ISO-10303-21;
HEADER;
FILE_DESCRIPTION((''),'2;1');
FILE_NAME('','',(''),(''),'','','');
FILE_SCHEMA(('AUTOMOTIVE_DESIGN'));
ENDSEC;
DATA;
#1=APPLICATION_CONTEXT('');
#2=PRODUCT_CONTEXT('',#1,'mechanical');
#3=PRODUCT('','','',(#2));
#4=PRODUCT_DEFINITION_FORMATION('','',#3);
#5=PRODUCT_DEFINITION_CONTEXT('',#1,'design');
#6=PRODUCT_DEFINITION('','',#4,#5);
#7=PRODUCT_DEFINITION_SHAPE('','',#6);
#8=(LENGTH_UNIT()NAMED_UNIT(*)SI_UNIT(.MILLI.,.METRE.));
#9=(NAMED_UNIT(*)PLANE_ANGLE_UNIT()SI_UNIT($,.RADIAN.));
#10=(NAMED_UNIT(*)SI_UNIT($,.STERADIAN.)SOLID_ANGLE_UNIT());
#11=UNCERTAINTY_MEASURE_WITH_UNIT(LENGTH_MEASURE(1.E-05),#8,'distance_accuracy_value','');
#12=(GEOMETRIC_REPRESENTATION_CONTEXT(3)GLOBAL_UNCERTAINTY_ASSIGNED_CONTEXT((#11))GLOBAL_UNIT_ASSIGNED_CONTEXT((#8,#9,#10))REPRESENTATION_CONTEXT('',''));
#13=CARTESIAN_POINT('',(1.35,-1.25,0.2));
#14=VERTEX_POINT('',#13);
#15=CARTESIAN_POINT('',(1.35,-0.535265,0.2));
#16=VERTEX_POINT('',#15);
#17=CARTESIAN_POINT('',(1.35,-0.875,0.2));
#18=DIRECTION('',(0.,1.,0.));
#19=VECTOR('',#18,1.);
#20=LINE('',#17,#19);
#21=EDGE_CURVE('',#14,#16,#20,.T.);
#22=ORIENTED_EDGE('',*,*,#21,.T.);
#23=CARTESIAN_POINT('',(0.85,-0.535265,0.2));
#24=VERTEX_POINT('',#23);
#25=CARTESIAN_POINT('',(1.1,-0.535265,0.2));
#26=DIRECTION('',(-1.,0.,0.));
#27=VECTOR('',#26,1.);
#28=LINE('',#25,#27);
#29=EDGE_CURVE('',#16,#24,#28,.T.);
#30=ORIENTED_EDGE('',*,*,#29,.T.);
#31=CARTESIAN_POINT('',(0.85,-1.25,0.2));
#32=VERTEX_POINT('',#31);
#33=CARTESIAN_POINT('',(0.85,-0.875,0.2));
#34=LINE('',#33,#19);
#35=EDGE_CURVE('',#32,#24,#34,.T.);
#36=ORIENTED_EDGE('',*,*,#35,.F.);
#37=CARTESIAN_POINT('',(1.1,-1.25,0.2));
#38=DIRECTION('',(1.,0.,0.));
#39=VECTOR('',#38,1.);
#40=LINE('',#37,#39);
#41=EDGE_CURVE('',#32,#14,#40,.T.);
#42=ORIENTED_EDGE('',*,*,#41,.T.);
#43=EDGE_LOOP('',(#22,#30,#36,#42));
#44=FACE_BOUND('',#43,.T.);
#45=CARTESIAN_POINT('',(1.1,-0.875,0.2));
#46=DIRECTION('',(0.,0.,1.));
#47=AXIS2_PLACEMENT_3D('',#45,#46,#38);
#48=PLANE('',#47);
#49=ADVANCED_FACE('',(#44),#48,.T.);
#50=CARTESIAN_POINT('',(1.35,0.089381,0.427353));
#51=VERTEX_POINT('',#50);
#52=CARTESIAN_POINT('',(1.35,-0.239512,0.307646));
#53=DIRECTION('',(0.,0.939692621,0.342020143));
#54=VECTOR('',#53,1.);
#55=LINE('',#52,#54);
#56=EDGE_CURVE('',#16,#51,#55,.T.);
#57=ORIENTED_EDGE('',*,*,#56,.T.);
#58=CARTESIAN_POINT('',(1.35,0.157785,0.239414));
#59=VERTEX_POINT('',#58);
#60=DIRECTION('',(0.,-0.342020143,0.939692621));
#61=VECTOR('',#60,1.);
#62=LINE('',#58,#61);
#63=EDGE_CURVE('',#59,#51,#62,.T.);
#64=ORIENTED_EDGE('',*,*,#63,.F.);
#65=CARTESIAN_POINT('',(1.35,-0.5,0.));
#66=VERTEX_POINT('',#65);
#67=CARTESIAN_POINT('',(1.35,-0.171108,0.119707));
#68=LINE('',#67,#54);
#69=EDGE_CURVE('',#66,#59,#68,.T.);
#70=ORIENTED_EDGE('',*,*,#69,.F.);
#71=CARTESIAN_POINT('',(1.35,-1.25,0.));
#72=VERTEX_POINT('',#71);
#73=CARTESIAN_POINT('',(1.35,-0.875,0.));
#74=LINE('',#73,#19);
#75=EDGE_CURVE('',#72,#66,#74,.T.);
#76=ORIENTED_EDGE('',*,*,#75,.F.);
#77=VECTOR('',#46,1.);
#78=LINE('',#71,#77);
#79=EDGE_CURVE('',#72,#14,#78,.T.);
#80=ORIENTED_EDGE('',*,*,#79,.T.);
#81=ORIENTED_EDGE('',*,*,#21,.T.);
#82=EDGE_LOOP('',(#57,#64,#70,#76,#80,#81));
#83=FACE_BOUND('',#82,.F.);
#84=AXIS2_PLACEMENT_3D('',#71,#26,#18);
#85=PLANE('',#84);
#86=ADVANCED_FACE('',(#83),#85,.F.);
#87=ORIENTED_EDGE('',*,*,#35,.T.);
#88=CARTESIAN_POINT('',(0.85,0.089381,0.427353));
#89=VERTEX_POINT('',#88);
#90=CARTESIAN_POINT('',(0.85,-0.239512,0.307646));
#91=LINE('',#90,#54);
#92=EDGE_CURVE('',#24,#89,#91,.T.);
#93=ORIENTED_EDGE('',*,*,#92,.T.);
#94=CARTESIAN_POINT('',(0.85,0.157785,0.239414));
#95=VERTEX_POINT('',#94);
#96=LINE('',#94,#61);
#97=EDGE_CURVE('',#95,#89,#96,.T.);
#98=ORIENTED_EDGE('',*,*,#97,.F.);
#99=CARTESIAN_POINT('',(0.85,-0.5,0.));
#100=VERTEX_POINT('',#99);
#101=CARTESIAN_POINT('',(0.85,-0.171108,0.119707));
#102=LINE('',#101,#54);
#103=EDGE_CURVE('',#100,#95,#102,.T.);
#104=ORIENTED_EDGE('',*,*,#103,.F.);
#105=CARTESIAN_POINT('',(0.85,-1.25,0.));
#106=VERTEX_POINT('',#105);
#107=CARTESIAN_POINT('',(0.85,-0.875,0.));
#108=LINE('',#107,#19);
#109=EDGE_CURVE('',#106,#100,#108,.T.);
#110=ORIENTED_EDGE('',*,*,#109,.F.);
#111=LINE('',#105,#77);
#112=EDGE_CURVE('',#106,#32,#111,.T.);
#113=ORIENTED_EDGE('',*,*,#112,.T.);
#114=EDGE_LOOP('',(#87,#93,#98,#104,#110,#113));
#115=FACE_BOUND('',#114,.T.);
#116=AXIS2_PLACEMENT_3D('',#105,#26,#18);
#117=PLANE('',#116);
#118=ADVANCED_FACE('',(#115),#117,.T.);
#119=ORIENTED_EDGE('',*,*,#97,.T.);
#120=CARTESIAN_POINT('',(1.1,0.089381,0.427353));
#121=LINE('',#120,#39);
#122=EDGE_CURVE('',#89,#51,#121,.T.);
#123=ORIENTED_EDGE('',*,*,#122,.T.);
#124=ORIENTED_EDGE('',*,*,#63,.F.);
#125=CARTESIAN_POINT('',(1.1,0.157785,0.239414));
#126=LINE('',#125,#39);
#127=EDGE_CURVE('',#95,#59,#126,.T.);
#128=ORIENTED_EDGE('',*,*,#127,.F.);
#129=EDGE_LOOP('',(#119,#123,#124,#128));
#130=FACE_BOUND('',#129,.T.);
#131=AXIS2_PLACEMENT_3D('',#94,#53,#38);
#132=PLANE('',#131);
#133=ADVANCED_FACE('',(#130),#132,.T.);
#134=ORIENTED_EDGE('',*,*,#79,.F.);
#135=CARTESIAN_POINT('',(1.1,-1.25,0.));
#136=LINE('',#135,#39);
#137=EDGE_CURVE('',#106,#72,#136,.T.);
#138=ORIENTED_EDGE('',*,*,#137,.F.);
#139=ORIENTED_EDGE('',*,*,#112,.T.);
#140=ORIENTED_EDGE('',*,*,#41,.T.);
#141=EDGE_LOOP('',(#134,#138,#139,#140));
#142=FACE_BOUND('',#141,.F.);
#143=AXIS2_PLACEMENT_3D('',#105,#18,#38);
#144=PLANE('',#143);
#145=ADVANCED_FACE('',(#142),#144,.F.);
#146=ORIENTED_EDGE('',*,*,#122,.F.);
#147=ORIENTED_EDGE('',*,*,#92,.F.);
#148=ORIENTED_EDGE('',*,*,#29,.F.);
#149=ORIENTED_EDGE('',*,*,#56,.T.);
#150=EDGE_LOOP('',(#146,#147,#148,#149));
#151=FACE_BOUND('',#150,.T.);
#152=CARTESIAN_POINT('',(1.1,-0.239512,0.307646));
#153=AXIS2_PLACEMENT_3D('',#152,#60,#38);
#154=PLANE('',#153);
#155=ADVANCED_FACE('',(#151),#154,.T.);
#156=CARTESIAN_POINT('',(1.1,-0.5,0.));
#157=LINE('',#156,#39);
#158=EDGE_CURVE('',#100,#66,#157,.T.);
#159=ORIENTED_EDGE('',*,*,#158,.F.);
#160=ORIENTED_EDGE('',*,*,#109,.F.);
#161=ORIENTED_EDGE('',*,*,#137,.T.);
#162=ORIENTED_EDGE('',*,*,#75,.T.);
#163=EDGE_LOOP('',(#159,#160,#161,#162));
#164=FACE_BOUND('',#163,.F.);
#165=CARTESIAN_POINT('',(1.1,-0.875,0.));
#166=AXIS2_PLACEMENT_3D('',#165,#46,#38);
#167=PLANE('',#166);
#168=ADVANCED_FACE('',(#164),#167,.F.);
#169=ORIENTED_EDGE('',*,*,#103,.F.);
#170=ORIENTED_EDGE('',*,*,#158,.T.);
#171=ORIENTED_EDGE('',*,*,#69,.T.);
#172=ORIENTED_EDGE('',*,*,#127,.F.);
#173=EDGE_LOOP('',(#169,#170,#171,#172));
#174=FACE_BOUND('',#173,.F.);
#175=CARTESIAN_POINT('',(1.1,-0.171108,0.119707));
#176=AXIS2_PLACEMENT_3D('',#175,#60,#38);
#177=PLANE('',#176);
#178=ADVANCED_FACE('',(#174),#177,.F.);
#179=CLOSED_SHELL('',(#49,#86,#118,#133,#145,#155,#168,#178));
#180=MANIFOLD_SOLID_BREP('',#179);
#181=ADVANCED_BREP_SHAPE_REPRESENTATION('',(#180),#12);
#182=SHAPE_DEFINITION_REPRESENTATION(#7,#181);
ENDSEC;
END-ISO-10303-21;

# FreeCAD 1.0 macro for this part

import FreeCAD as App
import Part
import Sketcher
from FreeCAD import Vector
Q = App.Units.Quantity

doc = App.newDocument("Part")
params = doc.addObject("Spreadsheet::Sheet", "Params")
for row, (alias, value) in enumerate([
    ("sketch1_width", "0.5 mm"),
    ("sketch1_height", "0.75 mm"),
    ("pad1_length", "0.2 mm"),
    ("sketch2_width", "0.5 mm"),
    ("sketch2_height", "0.7 mm"),
    ("pad2_length", "0.2 mm"),
], start=1):
    params.set(f"A{row}", alias)
    params.set(f"B{row}", "=" + value)
    params.setAlias(f"B{row}", alias)

body = doc.addObject("PartDesign::Body", "Body")

sketch1 = doc.addObject("Sketcher::SketchObject", "Sketch")
body.addObject(sketch1)
sketch1.AttachmentSupport = (doc.XY_Plane, [""])
sketch1.MapMode = "FlatFace"
sketch1.addGeometry(Part.LineSegment(Vector(0, -0.5, 0), Vector(0, -1.2, 0)), False)
sketch1.addGeometry(Part.LineSegment(Vector(0, -1.2, 0), Vector(0.5, -1.2, 0)), False)
sketch1.addGeometry(Part.LineSegment(Vector(0.5, -1.2, 0), Vector(0.5, -0.5, 0)), False)
sketch1.addGeometry(Part.LineSegment(Vector(0.5, -0.5, 0), Vector(0, -0.5, 0)), False)
sketch1.addConstraint(Sketcher.Constraint("Coincident", 0, 2, 1, 1))
sketch1.addConstraint(Sketcher.Constraint("Coincident", 1, 2, 2, 1))
sketch1.addConstraint(Sketcher.Constraint("Coincident", 2, 2, 3, 1))
sketch1.addConstraint(Sketcher.Constraint("Coincident", 3, 2, 0, 1))
sketch1.addConstraint(Sketcher.Constraint("Vertical", 0))
sketch1.addConstraint(Sketcher.Constraint("Horizontal", 1))
sketch1.addConstraint(Sketcher.Constraint("Vertical", 2))
sketch1.addConstraint(Sketcher.Constraint("Horizontal", 3))
sketch1.addConstraint(Sketcher.Constraint("PointOnObject", 0, 2, -2))
sketch1.addConstraint(Sketcher.Constraint("DistanceX", 1, 1, 1, 2, Q("0.5 mm")))
sketch1.addConstraint(Sketcher.Constraint("DistanceY", 0, 2, 0, 1, Q("0.75 mm")))
sketch1.addConstraint(Sketcher.Constraint("DistanceY", 2, 2, -1, 1, Q("0.5 mm")))
sketch1.setExpression("Constraints[9]", "Params.sketch1_width")
sketch1.setExpression("Constraints[10]", "Params.sketch1_height")
pad1 = doc.addObject("PartDesign::Pad", "Pad")
body.addObject(pad1)
pad1.Profile = sketch1
pad1.setExpression("Length", "Params.pad1_length")
body2 = doc.addObject("PartDesign::Body", "Body001")

sketch2 = doc.addObject("Sketcher::SketchObject", "Sketch001")
body2.addObject(sketch2)
sketch2.AttachmentSupport = (doc.getObject("XY_Plane001"), [""])
sketch2.MapMode = "FlatFace"
sketch2.addGeometry(Part.LineSegment(Vector(0, 0.7, 0), Vector(0, 0, 0)), False)
sketch2.addGeometry(Part.LineSegment(Vector(0, 0, 0), Vector(0.5, 0, 0)), False)
sketch2.addGeometry(Part.LineSegment(Vector(0.5, 0, 0), Vector(0.5, 0.7, 0)), False)
sketch2.addGeometry(Part.LineSegment(Vector(0.5, 0.7, 0), Vector(0, 0.7, 0)), False)
sketch2.addConstraint(Sketcher.Constraint("Coincident", 0, 2, 1, 1))
sketch2.addConstraint(Sketcher.Constraint("Coincident", 1, 2, 2, 1))
sketch2.addConstraint(Sketcher.Constraint("Coincident", 2, 2, 3, 1))
sketch2.addConstraint(Sketcher.Constraint("Coincident", 3, 2, 0, 1))
sketch2.addConstraint(Sketcher.Constraint("Vertical", 0))
sketch2.addConstraint(Sketcher.Constraint("Horizontal", 1))
sketch2.addConstraint(Sketcher.Constraint("Vertical", 2))
sketch2.addConstraint(Sketcher.Constraint("Horizontal", 3))
sketch2.addConstraint(Sketcher.Constraint("Coincident", 0, 2, -1, 1))
sketch2.addConstraint(Sketcher.Constraint("DistanceX", 1, 1, 1, 2, Q("0.5 mm")))
sketch2.addConstraint(Sketcher.Constraint("DistanceY", 0, 2, 0, 1, Q("0.7 mm")))
sketch2.setExpression("Constraints[9]", "Params.sketch2_width")
sketch2.setExpression("Constraints[10]", "Params.sketch2_height")
pad2 = doc.addObject("PartDesign::Pad", "Pad001")
body2.addObject(pad2)
pad2.Profile = sketch2
pad2.setExpression("Length", "Params.pad2_length")
body3 = doc.addObject("PartDesign::Body", "Body002")
doc.recompute()

body2.Placement = App.Placement(Vector(0, -0.5, 0), App.Rotation(Vector(1, 0, 0), 20))
boolean = doc.addObject("PartDesign::Boolean", "Boolean")
body3.addObject(boolean)
boolean.Type = "Fuse"
boolean.addObjects([body2])
doc.recompute()

boolean2 = doc.addObject("PartDesign::Boolean", "Boolean001")
body3.addObject(boolean2)
boolean2.Type = "Fuse"
boolean2.addObjects([body])
body4 = doc.addObject("PartDesign::Body", "Body003")
doc.recompute()

body3.Placement = App.Placement(Vector(0.85, 0, 0), App.Rotation(Vector(0, 0, 1), 0))
boolean3 = doc.addObject("PartDesign::Boolean", "Boolean002")
body4.addObject(boolean3)
boolean3.Type = "Fuse"
boolean3.addObjects([body3])

doc.recompute()
